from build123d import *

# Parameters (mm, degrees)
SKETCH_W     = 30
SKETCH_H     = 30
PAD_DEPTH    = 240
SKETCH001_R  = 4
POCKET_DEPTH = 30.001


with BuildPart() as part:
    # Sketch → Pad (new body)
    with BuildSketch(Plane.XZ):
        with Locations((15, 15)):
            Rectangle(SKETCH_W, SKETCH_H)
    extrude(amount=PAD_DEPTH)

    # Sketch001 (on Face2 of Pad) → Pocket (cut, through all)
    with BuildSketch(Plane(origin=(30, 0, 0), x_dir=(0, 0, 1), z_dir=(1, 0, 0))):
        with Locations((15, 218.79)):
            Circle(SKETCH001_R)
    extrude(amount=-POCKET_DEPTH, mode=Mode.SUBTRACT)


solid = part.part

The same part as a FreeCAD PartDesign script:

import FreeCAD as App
import Part
import Sketcher
from FreeCAD import Vector
Q = App.Units.Quantity

doc = App.newDocument("Part")
body = doc.addObject("PartDesign::Body", "Body")

# Sketch on XZ plane
sketch1 = doc.addObject("Sketcher::SketchObject", "Sketch")
body.addObject(sketch1)
sketch1.AttachmentSupport = (doc.XZ_Plane, [""])
sketch1.MapMode = "FlatFace"
sketch1.addGeometry([
    Part.LineSegment(Vector(0, 30, 0), Vector(0, 0, 0)),
    Part.LineSegment(Vector(0, 0, 0), Vector(30, 0, 0)),
    Part.LineSegment(Vector(30, 0, 0), Vector(30, 30, 0)),
    Part.LineSegment(Vector(30, 30, 0), Vector(0, 30, 0)),
], False)
sketch1.addConstraint([
    Sketcher.Constraint("Coincident", 0, 2, 1, 1),
    Sketcher.Constraint("Coincident", 1, 2, 2, 1),
    Sketcher.Constraint("Coincident", 2, 2, 3, 1),
    Sketcher.Constraint("Coincident", 3, 2, 0, 1),
    Sketcher.Constraint("Vertical", 0),
    Sketcher.Constraint("Horizontal", 1),
    Sketcher.Constraint("Vertical", 2),
    Sketcher.Constraint("Horizontal", 3),
    Sketcher.Constraint("Coincident", 0, 2, -1, 1),
    Sketcher.Constraint("Equal", 3, 0),
    Sketcher.Constraint("DistanceX", 1, 1, 1, 2, Q("30 mm")),
])
pad1 = doc.addObject("PartDesign::Pad", "Pad")
body.addObject(pad1)
pad1.Profile = sketch1
pad1.Length = 240

# Sketch on YZ plane
sketch2 = doc.addObject("Sketcher::SketchObject", "Sketch001")
body.addObject(sketch2)
sketch2.AttachmentSupport = (doc.YZ_Plane, [""])
sketch2.MapMode = "FlatFace"
sketch2.AttachmentOffset = App.Placement(Vector(0, 0, 30), App.Rotation())
sketch2.addGeometry(Part.Circle(Vector(-218.8, 15, 0), Vector(0, 0, 1), 4), False)
sketch2.addConstraint([
    Sketcher.Constraint("Diameter", 0, Q("8 mm")),
    Sketcher.Constraint("DistanceY", -1, 1, 0, 3, Q("15 mm")),
    Sketcher.Constraint("DistanceX", 0, 3, -1, 1, Q("218.79 mm")),
])
pocket1 = doc.addObject("PartDesign::Pocket", "Pocket")
body.addObject(pocket1)
pocket1.Profile = sketch2
pocket1.Type = "ThroughAll"

doc.recompute()
